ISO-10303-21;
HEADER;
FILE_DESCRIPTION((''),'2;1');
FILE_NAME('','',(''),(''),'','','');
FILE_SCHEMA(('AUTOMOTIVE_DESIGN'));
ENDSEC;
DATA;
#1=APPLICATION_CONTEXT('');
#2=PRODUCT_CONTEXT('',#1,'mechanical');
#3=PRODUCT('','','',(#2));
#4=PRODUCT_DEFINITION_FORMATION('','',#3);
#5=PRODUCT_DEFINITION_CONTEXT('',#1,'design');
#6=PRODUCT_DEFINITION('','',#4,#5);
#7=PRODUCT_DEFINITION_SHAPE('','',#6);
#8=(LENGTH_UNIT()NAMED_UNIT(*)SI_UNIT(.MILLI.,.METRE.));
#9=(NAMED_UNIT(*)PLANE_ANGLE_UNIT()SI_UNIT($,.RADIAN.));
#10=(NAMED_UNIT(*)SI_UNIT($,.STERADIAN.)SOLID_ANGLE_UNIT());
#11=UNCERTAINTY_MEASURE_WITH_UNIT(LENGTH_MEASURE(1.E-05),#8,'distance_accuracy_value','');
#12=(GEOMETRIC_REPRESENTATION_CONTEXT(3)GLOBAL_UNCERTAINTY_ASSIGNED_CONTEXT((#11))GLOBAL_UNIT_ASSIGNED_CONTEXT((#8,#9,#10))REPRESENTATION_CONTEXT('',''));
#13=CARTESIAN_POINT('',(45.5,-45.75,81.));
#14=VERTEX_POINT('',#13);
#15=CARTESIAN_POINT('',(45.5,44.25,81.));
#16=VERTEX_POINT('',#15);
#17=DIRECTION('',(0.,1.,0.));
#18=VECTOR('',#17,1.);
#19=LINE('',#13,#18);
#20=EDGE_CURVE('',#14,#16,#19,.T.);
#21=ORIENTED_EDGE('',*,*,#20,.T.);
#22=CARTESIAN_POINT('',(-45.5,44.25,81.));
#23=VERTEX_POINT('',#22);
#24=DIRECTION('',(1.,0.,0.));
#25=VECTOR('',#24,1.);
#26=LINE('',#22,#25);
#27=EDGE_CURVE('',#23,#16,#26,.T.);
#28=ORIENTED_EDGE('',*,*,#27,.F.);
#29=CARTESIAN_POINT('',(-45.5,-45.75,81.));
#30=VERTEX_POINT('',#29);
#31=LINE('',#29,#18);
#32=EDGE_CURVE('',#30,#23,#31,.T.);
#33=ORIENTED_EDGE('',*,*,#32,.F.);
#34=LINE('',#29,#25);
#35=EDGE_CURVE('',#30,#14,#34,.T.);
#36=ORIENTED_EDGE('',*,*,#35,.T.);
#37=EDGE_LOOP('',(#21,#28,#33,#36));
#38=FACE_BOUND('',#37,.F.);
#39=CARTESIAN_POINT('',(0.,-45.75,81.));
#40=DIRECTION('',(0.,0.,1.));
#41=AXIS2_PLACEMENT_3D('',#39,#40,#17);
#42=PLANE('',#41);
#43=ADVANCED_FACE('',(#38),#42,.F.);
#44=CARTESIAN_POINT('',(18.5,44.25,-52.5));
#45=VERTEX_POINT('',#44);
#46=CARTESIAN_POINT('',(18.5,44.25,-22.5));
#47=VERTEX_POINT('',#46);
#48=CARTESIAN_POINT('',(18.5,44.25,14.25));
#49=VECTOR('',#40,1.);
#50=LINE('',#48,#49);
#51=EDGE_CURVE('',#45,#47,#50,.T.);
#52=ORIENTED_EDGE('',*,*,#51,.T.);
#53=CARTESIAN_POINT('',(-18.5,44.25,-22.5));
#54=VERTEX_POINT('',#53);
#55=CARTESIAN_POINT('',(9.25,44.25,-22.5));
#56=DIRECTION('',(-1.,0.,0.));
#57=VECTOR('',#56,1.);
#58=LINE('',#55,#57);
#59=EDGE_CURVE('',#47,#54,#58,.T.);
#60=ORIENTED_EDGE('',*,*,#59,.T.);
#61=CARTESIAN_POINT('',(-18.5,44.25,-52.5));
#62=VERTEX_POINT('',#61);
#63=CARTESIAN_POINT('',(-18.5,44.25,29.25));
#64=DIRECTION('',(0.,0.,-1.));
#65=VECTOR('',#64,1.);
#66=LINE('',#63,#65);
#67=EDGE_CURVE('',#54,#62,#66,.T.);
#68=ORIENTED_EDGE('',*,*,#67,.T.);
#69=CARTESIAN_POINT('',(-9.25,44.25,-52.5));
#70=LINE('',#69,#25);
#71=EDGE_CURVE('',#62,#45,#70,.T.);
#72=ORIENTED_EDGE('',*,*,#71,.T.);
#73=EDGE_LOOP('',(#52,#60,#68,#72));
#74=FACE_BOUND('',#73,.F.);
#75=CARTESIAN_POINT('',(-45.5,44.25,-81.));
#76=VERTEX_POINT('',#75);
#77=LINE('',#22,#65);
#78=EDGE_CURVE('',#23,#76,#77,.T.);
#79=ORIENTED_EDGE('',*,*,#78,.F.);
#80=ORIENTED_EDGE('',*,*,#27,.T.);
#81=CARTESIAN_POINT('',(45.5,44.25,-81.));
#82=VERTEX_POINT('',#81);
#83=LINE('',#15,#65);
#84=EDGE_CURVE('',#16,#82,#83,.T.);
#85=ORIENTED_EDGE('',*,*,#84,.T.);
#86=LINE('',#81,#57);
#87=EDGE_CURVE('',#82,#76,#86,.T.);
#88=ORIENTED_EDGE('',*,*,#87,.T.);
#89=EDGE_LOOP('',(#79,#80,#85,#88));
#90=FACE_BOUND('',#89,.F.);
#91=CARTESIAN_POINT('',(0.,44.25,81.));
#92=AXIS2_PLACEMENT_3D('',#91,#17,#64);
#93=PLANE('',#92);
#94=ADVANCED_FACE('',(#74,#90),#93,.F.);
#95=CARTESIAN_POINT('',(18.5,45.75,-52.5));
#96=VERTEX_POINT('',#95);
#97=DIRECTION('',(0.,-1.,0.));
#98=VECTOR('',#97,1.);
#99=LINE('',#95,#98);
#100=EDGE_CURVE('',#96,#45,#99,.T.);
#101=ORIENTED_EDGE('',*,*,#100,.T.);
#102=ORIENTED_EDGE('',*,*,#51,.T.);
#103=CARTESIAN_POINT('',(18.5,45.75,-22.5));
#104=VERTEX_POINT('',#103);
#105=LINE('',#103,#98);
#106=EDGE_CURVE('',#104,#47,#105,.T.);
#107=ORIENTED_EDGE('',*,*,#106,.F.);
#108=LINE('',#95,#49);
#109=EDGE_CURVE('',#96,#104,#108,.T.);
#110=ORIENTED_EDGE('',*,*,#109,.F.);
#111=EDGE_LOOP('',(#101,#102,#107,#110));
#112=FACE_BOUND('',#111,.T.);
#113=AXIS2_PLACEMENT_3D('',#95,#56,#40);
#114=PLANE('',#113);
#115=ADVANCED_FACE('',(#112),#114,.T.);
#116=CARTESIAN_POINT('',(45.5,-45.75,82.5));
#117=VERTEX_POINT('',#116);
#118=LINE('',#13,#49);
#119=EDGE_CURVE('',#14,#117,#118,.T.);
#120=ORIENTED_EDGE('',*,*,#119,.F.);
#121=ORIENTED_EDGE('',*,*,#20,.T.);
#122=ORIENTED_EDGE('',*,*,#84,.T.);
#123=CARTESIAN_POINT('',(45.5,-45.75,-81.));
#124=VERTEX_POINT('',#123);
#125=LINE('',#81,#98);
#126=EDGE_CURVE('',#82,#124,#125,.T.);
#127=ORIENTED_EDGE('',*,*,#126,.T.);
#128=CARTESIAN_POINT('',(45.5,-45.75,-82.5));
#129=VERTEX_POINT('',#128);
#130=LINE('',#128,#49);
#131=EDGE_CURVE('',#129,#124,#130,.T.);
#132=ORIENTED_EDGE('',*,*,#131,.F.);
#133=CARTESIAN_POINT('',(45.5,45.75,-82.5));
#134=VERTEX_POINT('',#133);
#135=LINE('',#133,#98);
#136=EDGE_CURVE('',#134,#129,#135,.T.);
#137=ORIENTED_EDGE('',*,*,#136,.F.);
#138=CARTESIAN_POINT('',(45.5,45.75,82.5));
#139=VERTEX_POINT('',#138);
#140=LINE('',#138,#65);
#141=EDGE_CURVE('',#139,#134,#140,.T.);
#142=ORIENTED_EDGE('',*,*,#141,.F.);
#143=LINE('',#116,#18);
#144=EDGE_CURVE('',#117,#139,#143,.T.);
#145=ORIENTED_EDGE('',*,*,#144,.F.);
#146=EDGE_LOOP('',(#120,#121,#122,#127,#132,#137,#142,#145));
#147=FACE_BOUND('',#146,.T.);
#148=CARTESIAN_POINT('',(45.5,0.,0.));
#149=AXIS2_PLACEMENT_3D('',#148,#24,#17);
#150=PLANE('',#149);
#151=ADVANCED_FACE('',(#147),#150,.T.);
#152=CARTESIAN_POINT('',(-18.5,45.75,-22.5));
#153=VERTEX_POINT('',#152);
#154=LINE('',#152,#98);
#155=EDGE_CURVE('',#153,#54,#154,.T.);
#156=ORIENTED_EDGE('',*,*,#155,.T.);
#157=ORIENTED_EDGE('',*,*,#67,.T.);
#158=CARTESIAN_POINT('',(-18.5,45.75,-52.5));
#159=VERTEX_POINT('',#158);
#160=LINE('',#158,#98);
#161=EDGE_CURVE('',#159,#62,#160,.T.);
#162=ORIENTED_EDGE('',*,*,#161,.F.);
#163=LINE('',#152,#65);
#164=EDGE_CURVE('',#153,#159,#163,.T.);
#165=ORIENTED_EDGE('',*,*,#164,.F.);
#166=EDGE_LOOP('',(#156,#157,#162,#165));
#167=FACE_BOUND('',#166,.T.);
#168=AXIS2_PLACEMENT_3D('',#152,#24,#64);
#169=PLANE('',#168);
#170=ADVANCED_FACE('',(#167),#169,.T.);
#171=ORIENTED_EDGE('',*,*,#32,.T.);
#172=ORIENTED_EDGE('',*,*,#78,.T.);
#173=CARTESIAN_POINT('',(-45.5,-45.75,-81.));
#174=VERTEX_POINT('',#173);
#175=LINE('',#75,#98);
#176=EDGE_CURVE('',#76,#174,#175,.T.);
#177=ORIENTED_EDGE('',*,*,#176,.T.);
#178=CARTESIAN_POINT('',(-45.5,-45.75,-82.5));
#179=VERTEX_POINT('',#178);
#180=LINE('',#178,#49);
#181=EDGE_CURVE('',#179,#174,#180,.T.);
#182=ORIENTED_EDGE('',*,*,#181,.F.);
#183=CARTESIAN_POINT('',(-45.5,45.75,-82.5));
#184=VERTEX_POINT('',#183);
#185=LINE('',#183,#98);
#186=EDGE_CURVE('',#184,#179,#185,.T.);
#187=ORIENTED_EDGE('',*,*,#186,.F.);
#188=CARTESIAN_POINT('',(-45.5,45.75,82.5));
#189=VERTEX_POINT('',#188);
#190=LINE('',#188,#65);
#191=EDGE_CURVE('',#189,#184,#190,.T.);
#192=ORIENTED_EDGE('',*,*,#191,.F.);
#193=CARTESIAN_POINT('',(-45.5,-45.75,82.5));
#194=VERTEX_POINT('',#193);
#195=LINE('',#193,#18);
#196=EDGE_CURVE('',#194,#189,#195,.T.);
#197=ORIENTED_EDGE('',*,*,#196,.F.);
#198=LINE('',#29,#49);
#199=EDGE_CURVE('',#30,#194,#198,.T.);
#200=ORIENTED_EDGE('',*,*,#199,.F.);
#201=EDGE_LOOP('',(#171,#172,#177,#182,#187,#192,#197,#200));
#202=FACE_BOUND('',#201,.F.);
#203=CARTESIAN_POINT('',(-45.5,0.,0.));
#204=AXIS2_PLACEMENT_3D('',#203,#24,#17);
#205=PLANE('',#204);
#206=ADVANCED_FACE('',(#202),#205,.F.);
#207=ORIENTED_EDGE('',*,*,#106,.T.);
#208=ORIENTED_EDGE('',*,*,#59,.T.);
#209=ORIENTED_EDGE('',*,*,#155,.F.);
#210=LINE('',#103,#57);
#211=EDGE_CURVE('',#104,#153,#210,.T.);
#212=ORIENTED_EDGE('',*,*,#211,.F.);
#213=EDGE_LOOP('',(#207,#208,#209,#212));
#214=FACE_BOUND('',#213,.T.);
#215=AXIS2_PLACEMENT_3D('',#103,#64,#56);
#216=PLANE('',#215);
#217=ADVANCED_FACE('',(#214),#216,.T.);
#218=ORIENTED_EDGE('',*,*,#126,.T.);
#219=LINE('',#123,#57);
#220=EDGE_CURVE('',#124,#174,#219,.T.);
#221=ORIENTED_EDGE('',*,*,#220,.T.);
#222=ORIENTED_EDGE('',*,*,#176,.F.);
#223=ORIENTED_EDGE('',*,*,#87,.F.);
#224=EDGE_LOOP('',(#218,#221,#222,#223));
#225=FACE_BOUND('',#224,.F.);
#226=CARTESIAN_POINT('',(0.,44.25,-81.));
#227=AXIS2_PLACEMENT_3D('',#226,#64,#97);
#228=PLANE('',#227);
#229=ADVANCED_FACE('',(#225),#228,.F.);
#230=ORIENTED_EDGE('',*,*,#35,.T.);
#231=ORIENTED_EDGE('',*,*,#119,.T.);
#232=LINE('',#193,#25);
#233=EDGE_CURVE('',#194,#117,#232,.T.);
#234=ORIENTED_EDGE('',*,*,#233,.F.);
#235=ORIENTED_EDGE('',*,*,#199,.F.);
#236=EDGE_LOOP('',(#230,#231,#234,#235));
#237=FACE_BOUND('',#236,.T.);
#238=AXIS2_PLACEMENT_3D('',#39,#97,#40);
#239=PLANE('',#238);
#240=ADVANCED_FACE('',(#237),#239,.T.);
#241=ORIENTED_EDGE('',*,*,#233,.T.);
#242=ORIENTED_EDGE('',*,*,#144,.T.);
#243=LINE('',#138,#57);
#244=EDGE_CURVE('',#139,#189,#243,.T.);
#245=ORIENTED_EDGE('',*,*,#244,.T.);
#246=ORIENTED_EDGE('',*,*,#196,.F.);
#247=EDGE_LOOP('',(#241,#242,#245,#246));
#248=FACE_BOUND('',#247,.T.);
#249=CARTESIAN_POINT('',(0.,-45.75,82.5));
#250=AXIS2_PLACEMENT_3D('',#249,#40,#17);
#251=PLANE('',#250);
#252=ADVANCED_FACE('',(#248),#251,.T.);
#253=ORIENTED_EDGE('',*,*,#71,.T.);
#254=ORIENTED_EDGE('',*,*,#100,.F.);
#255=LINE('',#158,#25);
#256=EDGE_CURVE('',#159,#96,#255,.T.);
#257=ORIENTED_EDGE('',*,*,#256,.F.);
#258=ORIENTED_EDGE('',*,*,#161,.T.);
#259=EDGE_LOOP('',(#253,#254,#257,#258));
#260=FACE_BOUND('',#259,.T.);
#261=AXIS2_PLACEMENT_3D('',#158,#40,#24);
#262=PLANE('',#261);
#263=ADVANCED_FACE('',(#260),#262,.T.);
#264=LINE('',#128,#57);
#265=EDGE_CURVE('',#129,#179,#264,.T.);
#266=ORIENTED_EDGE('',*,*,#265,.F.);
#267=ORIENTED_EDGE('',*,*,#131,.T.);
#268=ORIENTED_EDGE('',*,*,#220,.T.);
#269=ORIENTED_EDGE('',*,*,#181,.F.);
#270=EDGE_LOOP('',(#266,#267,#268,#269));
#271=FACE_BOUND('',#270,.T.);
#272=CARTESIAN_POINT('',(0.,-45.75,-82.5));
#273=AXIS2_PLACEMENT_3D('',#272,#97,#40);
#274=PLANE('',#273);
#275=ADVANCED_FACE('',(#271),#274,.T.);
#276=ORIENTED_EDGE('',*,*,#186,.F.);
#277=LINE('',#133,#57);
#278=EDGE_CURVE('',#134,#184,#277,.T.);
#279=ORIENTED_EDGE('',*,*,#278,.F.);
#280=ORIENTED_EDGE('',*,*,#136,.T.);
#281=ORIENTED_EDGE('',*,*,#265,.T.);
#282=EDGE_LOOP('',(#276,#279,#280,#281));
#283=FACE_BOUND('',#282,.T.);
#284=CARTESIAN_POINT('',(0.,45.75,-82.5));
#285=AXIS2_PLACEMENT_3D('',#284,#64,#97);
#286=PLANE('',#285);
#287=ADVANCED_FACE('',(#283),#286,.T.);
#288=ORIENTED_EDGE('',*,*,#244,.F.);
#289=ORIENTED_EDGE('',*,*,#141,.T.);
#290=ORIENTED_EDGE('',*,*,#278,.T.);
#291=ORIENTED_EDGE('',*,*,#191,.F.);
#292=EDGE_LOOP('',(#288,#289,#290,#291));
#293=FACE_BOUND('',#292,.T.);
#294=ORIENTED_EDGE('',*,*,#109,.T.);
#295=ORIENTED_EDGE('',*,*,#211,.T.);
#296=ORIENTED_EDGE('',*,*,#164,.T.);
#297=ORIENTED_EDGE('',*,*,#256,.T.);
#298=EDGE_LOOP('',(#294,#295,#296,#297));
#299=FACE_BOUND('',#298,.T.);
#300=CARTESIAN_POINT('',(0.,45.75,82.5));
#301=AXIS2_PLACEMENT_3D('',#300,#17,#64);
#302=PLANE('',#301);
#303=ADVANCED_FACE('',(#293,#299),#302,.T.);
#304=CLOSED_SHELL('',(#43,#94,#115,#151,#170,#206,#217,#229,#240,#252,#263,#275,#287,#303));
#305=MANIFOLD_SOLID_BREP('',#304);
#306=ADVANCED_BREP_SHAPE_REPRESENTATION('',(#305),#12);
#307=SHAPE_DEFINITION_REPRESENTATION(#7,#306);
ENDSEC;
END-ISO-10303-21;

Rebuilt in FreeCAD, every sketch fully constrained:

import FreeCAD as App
import Part
import Sketcher


def add_polygon(sketch, points):
    """Adds a closed chain of lines whose ends are joined by coincident constraints."""
    first, n = sketch.GeometryCount, len(points)
    for a, b in zip(points, points[1:] + points[:1]):
        sketch.addGeometry(Part.LineSegment(App.Vector(*a, 0), App.Vector(*b, 0)), False)
    for i in range(n):
        sketch.addConstraint(Sketcher.Constraint("Coincident", first + i, 2, first + (i + 1) % n, 1))

doc = App.newDocument("Part")
body = doc.addObject("PartDesign::Body", "Body")

sketch1 = body.newObject("Sketcher::SketchObject", "Sketch")
sketch1.AttachmentSupport = (doc.getObject("YZ_Plane"), [""])
sketch1.MapMode = "FlatFace"
add_polygon(sketch1, [(45.75, 82.5), (-45.75, 82.5), (-45.75, 81), (44.25, 81), (44.25, -81), (-45.75, -81), (-45.75, -82.5), (45.75, -82.5)])
sketch1.addConstraint([
    Sketcher.Constraint("Horizontal", 0),
    Sketcher.Constraint("Vertical", 1),
    Sketcher.Constraint("Horizontal", 2),
    Sketcher.Constraint("Vertical", 3),
    Sketcher.Constraint("Horizontal", 4),
    Sketcher.Constraint("Vertical", 5),
    Sketcher.Constraint("Horizontal", 6),
    Sketcher.Constraint("Vertical", 7),
    Sketcher.Constraint("Symmetric", 0, 2, 6, 2, -1, 1),
    Sketcher.Constraint("Symmetric", 1, 2, 4, 2, -1),
    Sketcher.Constraint("DistanceX", 2, 1, 2, 2, 90.0),
    Sketcher.Constraint("DistanceY", 7, 1, 7, 2, 165.0),
    Sketcher.Constraint("DistanceY", 1, 2, 1, 1, 1.5),
    Sketcher.Constraint("DistanceX", 3, 2, 6, 2, 1.5),
])
pad1 = body.newObject("PartDesign::Pad", "Pad")
pad1.Profile = sketch1
pad1.Length = 91
pad1.Midplane = True

sketch2 = body.newObject("Sketcher::SketchObject", "Sketch001")
sketch2.AttachmentSupport = (doc.getObject("XZ_Plane"), [""])
sketch2.MapMode = "FlatFace"
sketch2.AttachmentOffset = App.Placement(App.Vector(0, 0, -45.75), App.Rotation())
add_polygon(sketch2, [(-18.5, -22.5), (18.5, -22.5), (18.5, -52.5), (-18.5, -52.5)])
sketch2.addConstraint([
    Sketcher.Constraint("Horizontal", 0),
    Sketcher.Constraint("Vertical", 1),
    Sketcher.Constraint("Horizontal", 2),
    Sketcher.Constraint("Vertical", 3),
    Sketcher.Constraint("DistanceY", 1, 2, 1, 1, 30.0),
    Sketcher.Constraint("DistanceX", 0, 1, 0, 2, 37.0),
    Sketcher.Constraint("DistanceX", -1, 1, 0, 2, 18.5),
    Sketcher.Constraint("DistanceY", 0, 2, -1, 1, 22.5),
])
pocket1 = body.newObject("PartDesign::Pocket", "Pocket")
pocket1.Profile = sketch2
pocket1.Type = "ThroughAll"
pocket1.Reversed = True

doc.recompute()
